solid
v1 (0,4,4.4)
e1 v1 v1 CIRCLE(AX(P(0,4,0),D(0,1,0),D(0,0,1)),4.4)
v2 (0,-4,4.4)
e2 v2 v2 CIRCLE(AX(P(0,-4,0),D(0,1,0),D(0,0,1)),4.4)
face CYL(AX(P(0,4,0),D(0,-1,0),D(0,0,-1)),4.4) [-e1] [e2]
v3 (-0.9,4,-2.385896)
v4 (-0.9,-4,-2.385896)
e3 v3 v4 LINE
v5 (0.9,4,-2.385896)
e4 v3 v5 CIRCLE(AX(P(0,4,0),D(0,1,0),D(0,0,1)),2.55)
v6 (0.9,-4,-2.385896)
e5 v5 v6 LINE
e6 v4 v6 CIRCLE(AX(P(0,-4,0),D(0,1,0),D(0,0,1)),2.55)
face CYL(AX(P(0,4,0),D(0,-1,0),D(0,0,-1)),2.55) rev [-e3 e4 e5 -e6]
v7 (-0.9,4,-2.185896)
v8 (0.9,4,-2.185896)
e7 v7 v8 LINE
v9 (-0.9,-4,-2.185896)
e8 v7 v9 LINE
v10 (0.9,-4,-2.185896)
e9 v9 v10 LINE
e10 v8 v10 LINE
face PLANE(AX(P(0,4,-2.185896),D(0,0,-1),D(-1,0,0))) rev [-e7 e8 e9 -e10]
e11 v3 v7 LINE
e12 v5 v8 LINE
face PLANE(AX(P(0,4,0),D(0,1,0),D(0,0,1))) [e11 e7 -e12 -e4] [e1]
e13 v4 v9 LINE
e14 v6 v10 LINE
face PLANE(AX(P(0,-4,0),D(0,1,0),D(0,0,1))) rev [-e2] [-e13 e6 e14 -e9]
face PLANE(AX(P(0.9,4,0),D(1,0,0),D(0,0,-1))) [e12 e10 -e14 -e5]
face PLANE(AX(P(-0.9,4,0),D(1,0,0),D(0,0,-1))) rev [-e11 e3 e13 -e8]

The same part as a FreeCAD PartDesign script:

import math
import FreeCAD as App
import Part
import Sketcher
Q = App.Units.Quantity

doc = App.newDocument("Part")
params = doc.addObject("Spreadsheet::Sheet", "Params")
for row, (alias, value) in enumerate([
    ("sketch1_diameter", "8.8 mm"),
    ("sketch1_radius", "2.55 mm"),
    ("sketch1_width", "1.8 mm"),
    ("sketch1_height", "0.2 mm"),
    ("pad1_length", "8 mm"),
], start=1):
    params.set(f"A{row}", alias)
    params.set(f"B{row}", "=" + value)
    params.setAlias(f"B{row}", alias)

body = doc.addObject("PartDesign::Body", "Body")

# Sketch on XZ plane
sketch1 = doc.addObject("Sketcher::SketchObject", "Sketch")
body.addObject(sketch1)
sketch1.AttachmentSupport = (doc.XZ_Plane, [""])
sketch1.MapMode = "FlatFace"
sketch1.addGeometry([
    Part.Circle(App.Vector(0, 0, 0), App.Vector(0, 0, 1), 4.4),  # 0
    Part.ArcOfCircle(Part.Circle(App.Vector(0, 0, 0), App.Vector(0, 0, 1), 2.55), math.radians(-69), math.radians(249)),  # 1
    Part.LineSegment(App.Vector(-0.9, -2.39, 0), App.Vector(-0.9, -2.19, 0)),  # 2
    Part.LineSegment(App.Vector(-0.9, -2.19, 0), App.Vector(0.9, -2.19, 0)),  # 3
    Part.LineSegment(App.Vector(0.9, -2.19, 0), App.Vector(0.9, -2.39, 0)),  # 4
], False)
sketch1.addConstraint([
    Sketcher.Constraint("Coincident", 1, 2, 2, 1),
    Sketcher.Constraint("Coincident", 2, 2, 3, 1),
    Sketcher.Constraint("Coincident", 3, 2, 4, 1),
    Sketcher.Constraint("Coincident", 4, 2, 1, 1),
    Sketcher.Constraint("Vertical", 2),
    Sketcher.Constraint("Horizontal", 3),
    Sketcher.Constraint("Vertical", 4),
    Sketcher.Constraint("Coincident", 0, 3, -1, 1),
    Sketcher.Constraint("Coincident", 1, 3, -1, 1),
    Sketcher.Constraint("Horizontal", 1, 2, 4, 2),
    Sketcher.Constraint("Diameter", 0, Q("8.8 mm")),
    Sketcher.Constraint("Radius", 1, Q("2.55 mm")),
    Sketcher.Constraint("DistanceX", 3, 1, 3, 2, Q("1.8 mm")),
    Sketcher.Constraint("DistanceY", 2, 1, 2, 2, Q("0.2 mm")),
])
sketch1.setExpression("Constraints[10]", "Params.sketch1_diameter")
sketch1.setExpression("Constraints[11]", "Params.sketch1_radius")
sketch1.setExpression("Constraints[12]", "Params.sketch1_width")
sketch1.setExpression("Constraints[13]", "Params.sketch1_height")
pad1 = doc.addObject("PartDesign::Pad", "Pad")
body.addObject(pad1)
pad1.Profile = sketch1
pad1.setExpression("Length", "Params.pad1_length")
pad1.Midplane = True

doc.recompute()
